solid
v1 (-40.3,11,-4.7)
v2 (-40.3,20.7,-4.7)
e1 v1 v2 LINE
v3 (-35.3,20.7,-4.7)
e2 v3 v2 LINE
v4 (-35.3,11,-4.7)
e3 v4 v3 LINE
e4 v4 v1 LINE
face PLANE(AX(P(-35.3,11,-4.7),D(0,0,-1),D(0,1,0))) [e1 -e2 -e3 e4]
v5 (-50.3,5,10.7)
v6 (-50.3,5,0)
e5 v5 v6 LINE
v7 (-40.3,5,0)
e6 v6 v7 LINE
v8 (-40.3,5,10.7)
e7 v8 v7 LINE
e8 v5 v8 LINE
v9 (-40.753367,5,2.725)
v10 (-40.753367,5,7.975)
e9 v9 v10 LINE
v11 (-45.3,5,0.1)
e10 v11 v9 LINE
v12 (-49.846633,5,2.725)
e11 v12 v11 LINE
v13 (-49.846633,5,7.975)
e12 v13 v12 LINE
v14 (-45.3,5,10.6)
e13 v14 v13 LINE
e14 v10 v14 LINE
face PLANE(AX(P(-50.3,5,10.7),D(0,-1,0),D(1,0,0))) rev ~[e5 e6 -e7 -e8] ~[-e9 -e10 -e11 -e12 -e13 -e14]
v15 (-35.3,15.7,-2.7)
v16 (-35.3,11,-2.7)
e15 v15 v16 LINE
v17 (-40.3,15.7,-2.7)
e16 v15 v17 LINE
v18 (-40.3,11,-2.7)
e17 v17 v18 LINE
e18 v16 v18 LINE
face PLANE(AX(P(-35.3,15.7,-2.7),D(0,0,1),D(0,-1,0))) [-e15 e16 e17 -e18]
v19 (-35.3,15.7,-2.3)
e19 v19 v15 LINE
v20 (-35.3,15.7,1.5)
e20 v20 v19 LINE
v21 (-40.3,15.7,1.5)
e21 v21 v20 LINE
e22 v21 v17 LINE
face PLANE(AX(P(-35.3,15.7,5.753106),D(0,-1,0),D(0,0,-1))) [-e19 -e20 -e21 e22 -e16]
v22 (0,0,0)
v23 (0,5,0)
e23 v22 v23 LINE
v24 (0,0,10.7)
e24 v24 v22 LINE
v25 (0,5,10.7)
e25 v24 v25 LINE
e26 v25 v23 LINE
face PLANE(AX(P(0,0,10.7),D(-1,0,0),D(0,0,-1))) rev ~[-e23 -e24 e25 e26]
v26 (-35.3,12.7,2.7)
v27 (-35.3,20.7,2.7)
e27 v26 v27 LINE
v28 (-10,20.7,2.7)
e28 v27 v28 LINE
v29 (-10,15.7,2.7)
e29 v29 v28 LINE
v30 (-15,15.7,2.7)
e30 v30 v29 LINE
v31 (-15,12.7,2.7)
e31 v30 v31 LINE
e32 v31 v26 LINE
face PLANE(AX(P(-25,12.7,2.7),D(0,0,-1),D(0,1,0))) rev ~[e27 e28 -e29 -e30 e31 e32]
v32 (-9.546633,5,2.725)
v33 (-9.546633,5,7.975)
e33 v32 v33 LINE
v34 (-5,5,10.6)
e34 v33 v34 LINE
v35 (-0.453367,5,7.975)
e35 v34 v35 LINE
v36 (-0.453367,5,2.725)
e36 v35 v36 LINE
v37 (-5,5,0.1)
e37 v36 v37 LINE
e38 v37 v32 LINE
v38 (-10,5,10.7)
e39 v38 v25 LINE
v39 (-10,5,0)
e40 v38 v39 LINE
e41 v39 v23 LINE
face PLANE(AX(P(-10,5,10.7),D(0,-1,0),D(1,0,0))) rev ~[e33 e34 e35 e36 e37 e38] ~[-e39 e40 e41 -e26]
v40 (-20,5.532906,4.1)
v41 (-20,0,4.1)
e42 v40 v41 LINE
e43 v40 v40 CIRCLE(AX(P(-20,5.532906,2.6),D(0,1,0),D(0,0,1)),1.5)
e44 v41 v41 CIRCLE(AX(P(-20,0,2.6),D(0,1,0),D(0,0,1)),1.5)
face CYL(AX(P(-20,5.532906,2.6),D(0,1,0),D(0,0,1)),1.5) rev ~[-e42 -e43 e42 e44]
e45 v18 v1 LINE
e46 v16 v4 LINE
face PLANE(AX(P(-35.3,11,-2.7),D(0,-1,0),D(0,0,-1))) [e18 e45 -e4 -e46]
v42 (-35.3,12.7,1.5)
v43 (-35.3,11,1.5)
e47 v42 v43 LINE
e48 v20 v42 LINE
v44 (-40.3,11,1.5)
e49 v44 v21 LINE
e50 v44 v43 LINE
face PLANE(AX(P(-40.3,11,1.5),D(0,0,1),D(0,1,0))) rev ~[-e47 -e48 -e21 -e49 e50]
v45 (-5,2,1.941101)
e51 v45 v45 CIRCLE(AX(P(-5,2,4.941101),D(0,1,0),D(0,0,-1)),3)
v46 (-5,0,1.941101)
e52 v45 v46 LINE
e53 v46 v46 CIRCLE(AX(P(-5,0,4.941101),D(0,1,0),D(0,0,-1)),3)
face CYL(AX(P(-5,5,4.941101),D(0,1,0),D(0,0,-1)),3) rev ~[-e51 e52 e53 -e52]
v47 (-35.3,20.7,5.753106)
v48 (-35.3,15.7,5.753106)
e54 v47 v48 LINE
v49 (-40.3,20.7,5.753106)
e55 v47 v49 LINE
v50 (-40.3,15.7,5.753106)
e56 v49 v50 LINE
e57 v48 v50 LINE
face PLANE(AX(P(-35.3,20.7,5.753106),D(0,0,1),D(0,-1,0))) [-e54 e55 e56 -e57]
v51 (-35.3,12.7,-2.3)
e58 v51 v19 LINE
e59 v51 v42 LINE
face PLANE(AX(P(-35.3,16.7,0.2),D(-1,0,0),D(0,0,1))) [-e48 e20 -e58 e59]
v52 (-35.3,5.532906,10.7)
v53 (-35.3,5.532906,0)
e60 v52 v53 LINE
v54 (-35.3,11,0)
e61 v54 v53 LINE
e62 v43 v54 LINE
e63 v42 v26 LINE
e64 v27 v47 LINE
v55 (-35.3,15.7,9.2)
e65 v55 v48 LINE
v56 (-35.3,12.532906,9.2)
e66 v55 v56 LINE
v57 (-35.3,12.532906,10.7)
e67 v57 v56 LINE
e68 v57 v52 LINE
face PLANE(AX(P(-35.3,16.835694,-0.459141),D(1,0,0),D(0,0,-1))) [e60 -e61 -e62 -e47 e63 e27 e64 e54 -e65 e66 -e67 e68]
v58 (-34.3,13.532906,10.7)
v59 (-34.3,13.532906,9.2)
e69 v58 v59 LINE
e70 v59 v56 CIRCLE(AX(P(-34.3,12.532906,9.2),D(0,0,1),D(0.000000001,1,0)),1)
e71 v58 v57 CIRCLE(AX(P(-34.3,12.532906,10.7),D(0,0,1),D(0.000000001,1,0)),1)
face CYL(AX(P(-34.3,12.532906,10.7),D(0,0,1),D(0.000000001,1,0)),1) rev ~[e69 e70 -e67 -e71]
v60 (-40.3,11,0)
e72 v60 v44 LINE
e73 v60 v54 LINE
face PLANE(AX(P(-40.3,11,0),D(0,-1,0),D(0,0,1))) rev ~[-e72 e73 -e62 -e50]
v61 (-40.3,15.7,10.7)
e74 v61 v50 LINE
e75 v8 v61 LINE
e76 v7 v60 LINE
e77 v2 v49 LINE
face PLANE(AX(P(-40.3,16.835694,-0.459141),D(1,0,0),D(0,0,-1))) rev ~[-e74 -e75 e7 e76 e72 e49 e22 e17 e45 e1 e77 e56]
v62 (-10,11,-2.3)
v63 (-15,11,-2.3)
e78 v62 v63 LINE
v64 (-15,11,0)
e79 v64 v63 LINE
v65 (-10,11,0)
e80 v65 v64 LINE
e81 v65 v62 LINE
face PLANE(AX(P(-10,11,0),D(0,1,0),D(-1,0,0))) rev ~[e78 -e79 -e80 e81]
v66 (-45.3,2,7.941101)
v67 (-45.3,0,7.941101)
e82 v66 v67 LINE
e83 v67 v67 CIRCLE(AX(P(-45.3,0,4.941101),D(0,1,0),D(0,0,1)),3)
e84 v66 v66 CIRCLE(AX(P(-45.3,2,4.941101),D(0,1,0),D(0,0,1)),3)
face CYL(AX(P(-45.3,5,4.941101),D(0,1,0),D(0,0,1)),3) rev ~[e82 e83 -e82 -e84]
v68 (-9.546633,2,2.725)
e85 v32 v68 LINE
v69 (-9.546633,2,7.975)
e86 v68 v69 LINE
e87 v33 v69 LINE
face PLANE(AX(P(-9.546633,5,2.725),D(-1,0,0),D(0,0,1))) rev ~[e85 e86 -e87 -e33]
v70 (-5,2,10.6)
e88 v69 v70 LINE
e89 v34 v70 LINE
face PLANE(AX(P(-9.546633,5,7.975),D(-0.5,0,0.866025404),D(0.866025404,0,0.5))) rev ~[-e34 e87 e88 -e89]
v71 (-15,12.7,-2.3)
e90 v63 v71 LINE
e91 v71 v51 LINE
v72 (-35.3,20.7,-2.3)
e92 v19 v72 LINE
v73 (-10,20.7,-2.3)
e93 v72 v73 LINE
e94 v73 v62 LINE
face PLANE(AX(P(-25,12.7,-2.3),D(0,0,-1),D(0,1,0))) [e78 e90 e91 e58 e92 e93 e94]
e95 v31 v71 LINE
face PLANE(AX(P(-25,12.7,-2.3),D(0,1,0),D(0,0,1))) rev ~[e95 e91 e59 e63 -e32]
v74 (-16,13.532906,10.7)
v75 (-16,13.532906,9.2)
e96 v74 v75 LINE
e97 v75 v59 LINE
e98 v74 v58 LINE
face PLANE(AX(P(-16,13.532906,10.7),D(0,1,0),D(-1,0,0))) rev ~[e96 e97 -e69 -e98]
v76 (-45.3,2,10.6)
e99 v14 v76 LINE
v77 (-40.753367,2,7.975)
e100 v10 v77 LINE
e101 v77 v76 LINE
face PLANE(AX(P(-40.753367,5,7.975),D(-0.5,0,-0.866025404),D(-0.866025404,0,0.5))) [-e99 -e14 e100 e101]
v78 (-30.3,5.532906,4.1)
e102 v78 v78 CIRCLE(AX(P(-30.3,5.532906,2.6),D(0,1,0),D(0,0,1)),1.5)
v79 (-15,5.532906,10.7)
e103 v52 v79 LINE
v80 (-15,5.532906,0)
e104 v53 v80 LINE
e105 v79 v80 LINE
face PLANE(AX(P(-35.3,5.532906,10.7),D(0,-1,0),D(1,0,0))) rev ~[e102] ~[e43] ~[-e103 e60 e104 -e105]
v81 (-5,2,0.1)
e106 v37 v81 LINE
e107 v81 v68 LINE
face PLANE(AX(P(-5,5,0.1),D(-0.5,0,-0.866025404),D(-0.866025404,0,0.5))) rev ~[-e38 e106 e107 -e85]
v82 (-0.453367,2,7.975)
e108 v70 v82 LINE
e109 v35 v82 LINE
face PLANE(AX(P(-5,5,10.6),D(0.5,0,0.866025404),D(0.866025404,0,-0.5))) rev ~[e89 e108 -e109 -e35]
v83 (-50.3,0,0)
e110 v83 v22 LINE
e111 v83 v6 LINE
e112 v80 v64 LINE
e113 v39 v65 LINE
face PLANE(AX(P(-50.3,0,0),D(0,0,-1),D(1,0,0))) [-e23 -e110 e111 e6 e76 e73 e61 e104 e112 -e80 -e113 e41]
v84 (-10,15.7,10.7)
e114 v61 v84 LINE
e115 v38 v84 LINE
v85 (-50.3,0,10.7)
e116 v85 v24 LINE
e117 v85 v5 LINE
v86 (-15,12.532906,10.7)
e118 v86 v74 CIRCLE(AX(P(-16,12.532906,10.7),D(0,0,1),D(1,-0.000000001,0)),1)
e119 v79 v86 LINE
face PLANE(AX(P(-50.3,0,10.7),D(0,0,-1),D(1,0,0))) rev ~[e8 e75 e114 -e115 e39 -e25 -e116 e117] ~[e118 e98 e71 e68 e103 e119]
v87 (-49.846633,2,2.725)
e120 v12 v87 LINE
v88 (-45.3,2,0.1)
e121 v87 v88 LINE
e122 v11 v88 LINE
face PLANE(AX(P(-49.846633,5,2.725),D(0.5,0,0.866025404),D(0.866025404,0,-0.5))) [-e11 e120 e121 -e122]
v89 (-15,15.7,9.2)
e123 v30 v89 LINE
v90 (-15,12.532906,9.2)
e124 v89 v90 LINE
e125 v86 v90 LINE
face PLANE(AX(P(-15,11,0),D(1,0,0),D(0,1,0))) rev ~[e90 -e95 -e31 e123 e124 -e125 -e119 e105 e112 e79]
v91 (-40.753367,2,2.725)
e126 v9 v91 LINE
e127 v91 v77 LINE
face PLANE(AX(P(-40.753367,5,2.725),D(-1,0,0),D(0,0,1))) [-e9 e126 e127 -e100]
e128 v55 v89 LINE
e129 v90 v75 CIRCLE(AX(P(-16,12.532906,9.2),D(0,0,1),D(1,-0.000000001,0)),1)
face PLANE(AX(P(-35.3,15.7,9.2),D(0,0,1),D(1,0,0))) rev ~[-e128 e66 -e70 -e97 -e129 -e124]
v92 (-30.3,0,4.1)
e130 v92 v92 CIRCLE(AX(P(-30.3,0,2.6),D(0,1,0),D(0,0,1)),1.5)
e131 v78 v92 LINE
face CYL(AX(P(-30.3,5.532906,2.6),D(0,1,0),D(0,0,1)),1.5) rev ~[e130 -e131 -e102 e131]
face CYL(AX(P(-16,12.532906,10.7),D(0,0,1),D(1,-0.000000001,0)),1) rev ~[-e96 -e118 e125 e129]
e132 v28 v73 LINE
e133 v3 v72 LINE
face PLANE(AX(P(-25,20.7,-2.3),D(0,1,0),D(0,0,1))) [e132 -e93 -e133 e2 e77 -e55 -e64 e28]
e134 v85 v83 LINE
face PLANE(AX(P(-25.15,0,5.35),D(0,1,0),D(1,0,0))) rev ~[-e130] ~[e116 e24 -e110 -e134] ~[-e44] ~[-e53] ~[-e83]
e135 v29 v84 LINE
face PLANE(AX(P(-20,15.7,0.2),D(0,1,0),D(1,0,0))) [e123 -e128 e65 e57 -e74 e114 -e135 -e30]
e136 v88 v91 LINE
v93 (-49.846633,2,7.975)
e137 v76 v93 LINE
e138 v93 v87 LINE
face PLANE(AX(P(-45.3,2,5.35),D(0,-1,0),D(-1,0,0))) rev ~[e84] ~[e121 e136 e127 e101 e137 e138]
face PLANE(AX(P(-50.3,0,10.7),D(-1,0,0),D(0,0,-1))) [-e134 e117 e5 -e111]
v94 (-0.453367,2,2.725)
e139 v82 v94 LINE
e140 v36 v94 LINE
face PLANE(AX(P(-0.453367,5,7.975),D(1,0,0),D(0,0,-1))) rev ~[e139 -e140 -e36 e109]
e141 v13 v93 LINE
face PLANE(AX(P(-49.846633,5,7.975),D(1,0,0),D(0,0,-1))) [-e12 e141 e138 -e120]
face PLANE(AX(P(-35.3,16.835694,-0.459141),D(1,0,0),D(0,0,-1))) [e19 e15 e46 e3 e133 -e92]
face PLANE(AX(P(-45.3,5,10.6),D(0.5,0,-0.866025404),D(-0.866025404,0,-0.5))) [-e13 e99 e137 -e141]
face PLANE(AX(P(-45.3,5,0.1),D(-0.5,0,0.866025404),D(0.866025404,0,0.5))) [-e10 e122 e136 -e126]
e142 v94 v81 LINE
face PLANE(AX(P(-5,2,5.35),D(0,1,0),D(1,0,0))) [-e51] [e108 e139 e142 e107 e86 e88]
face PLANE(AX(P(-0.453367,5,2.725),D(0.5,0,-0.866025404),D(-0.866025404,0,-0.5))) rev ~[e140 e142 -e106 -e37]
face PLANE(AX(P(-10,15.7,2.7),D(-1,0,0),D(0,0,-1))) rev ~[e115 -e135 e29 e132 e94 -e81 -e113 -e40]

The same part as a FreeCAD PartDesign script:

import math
import FreeCAD as App
import Part
import Sketcher
Q = App.Units.Quantity


def add_polygon(sketch, points):
    """Adds a closed chain of lines whose ends are joined by coincident constraints."""
    first, n = sketch.GeometryCount, len(points)
    for a, b in zip(points, points[1:] + points[:1]):
        sketch.addGeometry(Part.LineSegment(App.Vector(*a, 0), App.Vector(*b, 0)), False)
    for i in range(n):
        sketch.addConstraint(Sketcher.Constraint("Coincident", first + i, 2, first + (i + 1) % n, 1))

doc = App.newDocument("Part")
params = doc.addObject("Spreadsheet::Sheet", "Params")
for row, (alias, value) in enumerate([
    ("sketch1_width", "50.3 mm"),
    ("sketch1_height", "10.7 mm"),
    ("pad1_length", "15.7 mm"),
    ("sketch2_width", "10 mm"),
    ("sketch2_height", "10.7 mm"),
    ("sketch3_radius", "1 mm"),
    ("sketch3_height", "7 mm"),
    ("sketch3_width", "20.3 mm"),
    ("sketch4_width", "10 mm"),
    ("sketch4_height", "10.7 mm"),
    ("sketch5_width", "20.3 mm"),
    ("sketch5_height", "9.2 mm"),
    ("pocket4_length", "3.167094 mm"),
    ("sketch6_width", "4.7 mm"),
    ("sketch6_height", "1.5 mm"),
    ("sketch7_diameter", "6 mm"),
    ("sketch8_diameter", "6 mm"),
    ("sketch9_diameter", "3 mm"),
    ("sketch10_diameter", "3 mm"),
    ("sketch11_height", "5.25 mm"),
    ("pocket10_length", "3 mm"),
    ("sketch12_width", "5 mm"),
    ("sketch12_height", "2 mm"),
    ("sketch12_width2", "4.7 mm"),
    ("pad2_length", "5 mm"),
    ("sketch13_width", "5 mm"),
    ("sketch13_height", "4.7 mm"),
    ("pad3_length", "2.3 mm"),
    ("sketch14_width", "10 mm"),
    ("sketch14_height", "5 mm"),
    ("pad4_length", "3 mm"),
    ("sketch15_width", "15 mm"),
    ("sketch15_height", "5 mm"),
    ("pad5_length", "5 mm"),
    ("sketch16_width", "8 mm"),
    ("sketch16_height", "5 mm"),
    ("pad6_length", "10.3 mm"),
], start=1):
    params.set(f"A{row}", alias)
    params.set(f"B{row}", "=" + value)
    params.setAlias(f"B{row}", alias)

body = doc.addObject("PartDesign::Body", "Body")

# Sketch on XZ plane
sketch1 = doc.addObject("Sketcher::SketchObject", "Sketch")
body.addObject(sketch1)
sketch1.AttachmentSupport = (doc.XZ_Plane, [""])
sketch1.MapMode = "FlatFace"
add_polygon(sketch1, [(-50.3, 0), (-50.3, 10.7), (0, 10.7), (0, 0)])  # lines 0-3
sketch1.addConstraint(Sketcher.Constraint("Vertical", 0))
sketch1.addConstraint(Sketcher.Constraint("Horizontal", 1))
sketch1.addConstraint(Sketcher.Constraint("Vertical", 2))
sketch1.addConstraint(Sketcher.Constraint("Horizontal", 3))
sketch1.addConstraint(Sketcher.Constraint("Coincident", 2, 2, -1, 1))
sketch1.addConstraint(Sketcher.Constraint("DistanceX", 1, 1, 1, 2, 50.3))
sketch1.addConstraint(Sketcher.Constraint("DistanceY", 0, 1, 0, 2, 10.7))
sketch1.setExpression("Constraints[9]", "Params.sketch1_width")
sketch1.setExpression("Constraints[10]", "Params.sketch1_height")
pad1 = doc.addObject("PartDesign::Pad", "Pad")
body.addObject(pad1)
pad1.Profile = sketch1
pad1.setExpression("Length", "Params.pad1_length")
pad1.Reversed = True

# Sketch on XY plane
sketch2 = doc.addObject("Sketcher::SketchObject", "Sketch001")
body.addObject(sketch2)
sketch2.AttachmentSupport = (doc.XY_Plane, [""])
sketch2.MapMode = "FlatFace"
sketch2.AttachmentOffset = App.Placement(App.Vector(0, 0, 10.7), App.Rotation())
add_polygon(sketch2, [(-50.3, 15.7), (-50.3, 5), (-40.3, 5), (-40.3, 15.7)])  # lines 0-3
sketch2.addConstraint(Sketcher.Constraint("Vertical", 0))
sketch2.addConstraint(Sketcher.Constraint("Horizontal", 1))
sketch2.addConstraint(Sketcher.Constraint("Vertical", 2))
sketch2.addConstraint(Sketcher.Constraint("Horizontal", 3))
sketch2.addConstraint(Sketcher.Constraint("DistanceX", 1, 1, 1, 2, 10.0))
sketch2.addConstraint(Sketcher.Constraint("DistanceY", 0, 2, 0, 1, 10.7))
sketch2.addConstraint(Sketcher.Constraint("DistanceY", -1, 1, 0, 2, 5.0))
sketch2.addConstraint(Sketcher.Constraint("DistanceX", 0, 2, -1, 1, 50.3))
sketch2.setExpression("Constraints[8]", "Params.sketch2_width")
sketch2.setExpression("Constraints[9]", "Params.sketch2_height")
pocket1 = doc.addObject("PartDesign::Pocket", "Pocket")
body.addObject(pocket1)
pocket1.Profile = sketch2
pocket1.Type = "UpToFirst"

# Sketch on XY plane
sketch3 = doc.addObject("Sketcher::SketchObject", "Sketch002")
body.addObject(sketch3)
sketch3.AttachmentSupport = (doc.XY_Plane, [""])
sketch3.MapMode = "FlatFace"
sketch3.AttachmentOffset = App.Placement(App.Vector(0, 0, 10.7), App.Rotation())
sketch3.addGeometry(Part.LineSegment(App.Vector(-35.3, 5.532906, 0), App.Vector(-15, 5.532906, 0)), False)
sketch3.addGeometry(Part.LineSegment(App.Vector(-15, 5.532906, 0), App.Vector(-15, 12.532906, 0)), False)
sketch3.addGeometry(Part.ArcOfCircle(Part.Circle(App.Vector(-16, 12.532906, 0), App.Vector(0, 0, 1), 1), math.radians(0), math.radians(90)), False)
sketch3.addGeometry(Part.LineSegment(App.Vector(-16, 13.532906, 0), App.Vector(-34.3, 13.532906, 0)), False)
sketch3.addGeometry(Part.ArcOfCircle(Part.Circle(App.Vector(-34.3, 12.532906, 0), App.Vector(0, 0, 1), 1), math.radians(90), math.radians(180)), False)
sketch3.addGeometry(Part.LineSegment(App.Vector(-35.3, 12.532906, 0), App.Vector(-35.3, 5.532906, 0)), False)
sketch3.addConstraint(Sketcher.Constraint("Coincident", 0, 2, 1, 1))
sketch3.addConstraint(Sketcher.Constraint("Tangent", 1, 2, 2, 1))
sketch3.addConstraint(Sketcher.Constraint("Tangent", 2, 2, 3, 1))
sketch3.addConstraint(Sketcher.Constraint("Tangent", 3, 2, 4, 1))
sketch3.addConstraint(Sketcher.Constraint("Tangent", 4, 2, 5, 1))
sketch3.addConstraint(Sketcher.Constraint("Coincident", 5, 2, 0, 1))
sketch3.addConstraint(Sketcher.Constraint("Horizontal", 0))
sketch3.addConstraint(Sketcher.Constraint("Vertical", 1))
sketch3.addConstraint(Sketcher.Constraint("Horizontal", 3))
sketch3.addConstraint(Sketcher.Constraint("Vertical", 5))
sketch3.addConstraint(Sketcher.Constraint("Equal", 2, 4))
sketch3.addConstraint(Sketcher.Constraint("Radius", 2, 1.0))
sketch3.addConstraint(Sketcher.Constraint("DistanceY", 1, 1, 1, 2, 7.0))
sketch3.addConstraint(Sketcher.Constraint("DistanceX", 0, 1, 0, 2, 20.3))
sketch3.addConstraint(Sketcher.Constraint("DistanceX", 2, 3, -1, 1, 16.0))
sketch3.addConstraint(Sketcher.Constraint("DistanceY", -1, 1, 2, 3, 12.532906))
sketch3.setExpression("Constraints[11]", "Params.sketch3_radius")
sketch3.setExpression("Constraints[12]", "Params.sketch3_height")
sketch3.setExpression("Constraints[13]", "Params.sketch3_width")
pocket2 = doc.addObject("PartDesign::Pocket", "Pocket001")
body.addObject(pocket2)
pocket2.Profile = sketch3
pocket2.Type = "UpToFirst"

# Sketch on XY plane
sketch4 = doc.addObject("Sketcher::SketchObject", "Sketch003")
body.addObject(sketch4)
sketch4.AttachmentSupport = (doc.XY_Plane, [""])
sketch4.MapMode = "FlatFace"
sketch4.AttachmentOffset = App.Placement(App.Vector(0, 0, 10.7), App.Rotation())
add_polygon(sketch4, [(-10, 15.7), (-10, 5), (0, 5), (0, 15.7)])  # lines 0-3
sketch4.addConstraint(Sketcher.Constraint("Vertical", 0))
sketch4.addConstraint(Sketcher.Constraint("Horizontal", 1))
sketch4.addConstraint(Sketcher.Constraint("Vertical", 2))
sketch4.addConstraint(Sketcher.Constraint("Horizontal", 3))
sketch4.addConstraint(Sketcher.Constraint("PointOnObject", 1, 2, -2))
sketch4.addConstraint(Sketcher.Constraint("DistanceX", 1, 1, 1, 2, 10.0))
sketch4.addConstraint(Sketcher.Constraint("DistanceY", 0, 2, 0, 1, 10.7))
sketch4.addConstraint(Sketcher.Constraint("DistanceY", -1, 1, 0, 2, 5.0))
sketch4.setExpression("Constraints[9]", "Params.sketch4_width")
sketch4.setExpression("Constraints[10]", "Params.sketch4_height")
pocket3 = doc.addObject("PartDesign::Pocket", "Pocket002")
body.addObject(pocket3)
pocket3.Profile = sketch4
pocket3.Type = "UpToFirst"

# Sketch on XZ plane
sketch5 = doc.addObject("Sketcher::SketchObject", "Sketch004")
body.addObject(sketch5)
sketch5.AttachmentSupport = (doc.XZ_Plane, [""])
sketch5.MapMode = "FlatFace"
sketch5.AttachmentOffset = App.Placement(App.Vector(0, 0, -15.7), App.Rotation())
add_polygon(sketch5, [(-35.3, 0), (-35.3, 9.2), (-15, 9.2), (-15, 0)])  # lines 0-3
sketch5.addConstraint(Sketcher.Constraint("Vertical", 0))
sketch5.addConstraint(Sketcher.Constraint("Horizontal", 1))
sketch5.addConstraint(Sketcher.Constraint("Vertical", 2))
sketch5.addConstraint(Sketcher.Constraint("Horizontal", 3))
sketch5.addConstraint(Sketcher.Constraint("PointOnObject", 2, 2, -1))
sketch5.addConstraint(Sketcher.Constraint("DistanceX", 1, 1, 1, 2, 20.3))
sketch5.addConstraint(Sketcher.Constraint("DistanceY", 0, 1, 0, 2, 9.2))
sketch5.addConstraint(Sketcher.Constraint("DistanceX", 1, 2, -1, 1, 15.0))
sketch5.setExpression("Constraints[9]", "Params.sketch5_width")
sketch5.setExpression("Constraints[10]", "Params.sketch5_height")
pocket4 = doc.addObject("PartDesign::Pocket", "Pocket003")
body.addObject(pocket4)
pocket4.Profile = sketch5
pocket4.setExpression("Length", "Params.pocket4_length")
pocket4.Reversed = True

# Sketch on YZ plane
sketch6 = doc.addObject("Sketcher::SketchObject", "Sketch005")
body.addObject(sketch6)
sketch6.AttachmentSupport = (doc.YZ_Plane, [""])
sketch6.MapMode = "FlatFace"
sketch6.AttachmentOffset = App.Placement(App.Vector(0, 0, -40.3), App.Rotation())
add_polygon(sketch6, [(15.7, 0), (11, 0), (11, 1.5), (15.7, 1.5)])  # lines 0-3
sketch6.addConstraint(Sketcher.Constraint("Horizontal", 0))
sketch6.addConstraint(Sketcher.Constraint("Vertical", 1))
sketch6.addConstraint(Sketcher.Constraint("Horizontal", 2))
sketch6.addConstraint(Sketcher.Constraint("Vertical", 3))
sketch6.addConstraint(Sketcher.Constraint("PointOnObject", 0, 2, -1))
sketch6.addConstraint(Sketcher.Constraint("DistanceX", 0, 2, 0, 1, 4.7))
sketch6.addConstraint(Sketcher.Constraint("DistanceY", 1, 1, 1, 2, 1.5))
sketch6.addConstraint(Sketcher.Constraint("DistanceX", -1, 1, 0, 2, 11.0))
sketch6.setExpression("Constraints[9]", "Params.sketch6_width")
sketch6.setExpression("Constraints[10]", "Params.sketch6_height")
pocket5 = doc.addObject("PartDesign::Pocket", "Pocket004")
body.addObject(pocket5)
pocket5.Profile = sketch6
pocket5.Type = "UpToFirst"
pocket5.Reversed = True

# Sketch on XZ plane
sketch7 = doc.addObject("Sketcher::SketchObject", "Sketch006")
body.addObject(sketch7)
sketch7.AttachmentSupport = (doc.XZ_Plane, [""])
sketch7.MapMode = "FlatFace"
sketch7.AttachmentOffset = App.Placement(App.Vector(0, 0, -5), App.Rotation())
sketch7.addGeometry(Part.Circle(App.Vector(-45.3, 4.941101, 0), App.Vector(0, 0, 1), 3), False)
sketch7.addConstraint(Sketcher.Constraint("Diameter", 0, 6.0))
sketch7.addConstraint(Sketcher.Constraint("DistanceX", 0, 3, -1, 1, 45.3))
sketch7.addConstraint(Sketcher.Constraint("DistanceY", -1, 1, 0, 3, 4.941101))
sketch7.setExpression("Constraints[0]", "Params.sketch7_diameter")
pocket6 = doc.addObject("PartDesign::Pocket", "Pocket005")
body.addObject(pocket6)
pocket6.Profile = sketch7
pocket6.Type = "UpToFirst"
pocket6.Reversed = True

# Sketch on XZ plane
sketch8 = doc.addObject("Sketcher::SketchObject", "Sketch007")
body.addObject(sketch8)
sketch8.AttachmentSupport = (doc.XZ_Plane, [""])
sketch8.MapMode = "FlatFace"
sketch8.AttachmentOffset = App.Placement(App.Vector(0, 0, -5), App.Rotation())
sketch8.addGeometry(Part.Circle(App.Vector(-5, 4.941101, 0), App.Vector(0, 0, 1), 3), False)
sketch8.addConstraint(Sketcher.Constraint("Diameter", 0, 6.0))
sketch8.addConstraint(Sketcher.Constraint("DistanceX", 0, 3, -1, 1, 5.0))
sketch8.addConstraint(Sketcher.Constraint("DistanceY", -1, 1, 0, 3, 4.941101))
sketch8.setExpression("Constraints[0]", "Params.sketch8_diameter")
pocket7 = doc.addObject("PartDesign::Pocket", "Pocket006")
body.addObject(pocket7)
pocket7.Profile = sketch8
pocket7.Type = "UpToFirst"
pocket7.Reversed = True

# Sketch on XZ plane
sketch9 = doc.addObject("Sketcher::SketchObject", "Sketch008")
body.addObject(sketch9)
sketch9.AttachmentSupport = (doc.XZ_Plane, [""])
sketch9.MapMode = "FlatFace"
sketch9.AttachmentOffset = App.Placement(App.Vector(0, 0, -5.532906), App.Rotation())
sketch9.addGeometry(Part.Circle(App.Vector(-30.3, 2.6, 0), App.Vector(0, 0, 1), 1.5), False)
sketch9.addConstraint(Sketcher.Constraint("Diameter", 0, 3.0))
sketch9.addConstraint(Sketcher.Constraint("DistanceX", 0, 3, -1, 1, 30.3))
sketch9.addConstraint(Sketcher.Constraint("DistanceY", -1, 1, 0, 3, 2.6))
sketch9.setExpression("Constraints[0]", "Params.sketch9_diameter")
pocket8 = doc.addObject("PartDesign::Pocket", "Pocket007")
body.addObject(pocket8)
pocket8.Profile = sketch9
pocket8.Type = "UpToFirst"
pocket8.Reversed = True

# Sketch on XZ plane
sketch10 = doc.addObject("Sketcher::SketchObject", "Sketch009")
body.addObject(sketch10)
sketch10.AttachmentSupport = (doc.XZ_Plane, [""])
sketch10.MapMode = "FlatFace"
sketch10.AttachmentOffset = App.Placement(App.Vector(0, 0, -5.532906), App.Rotation())
sketch10.addGeometry(Part.Circle(App.Vector(-20, 2.6, 0), App.Vector(0, 0, 1), 1.5), False)
sketch10.addConstraint(Sketcher.Constraint("Diameter", 0, 3.0))
sketch10.addConstraint(Sketcher.Constraint("DistanceX", 0, 3, -1, 1, 20.0))
sketch10.addConstraint(Sketcher.Constraint("DistanceY", -1, 1, 0, 3, 2.6))
sketch10.setExpression("Constraints[0]", "Params.sketch10_diameter")
pocket9 = doc.addObject("PartDesign::Pocket", "Pocket008")
body.addObject(pocket9)
pocket9.Profile = sketch10
pocket9.Type = "UpToFirst"
pocket9.Reversed = True

# Sketch on XZ plane
sketch11 = doc.addObject("Sketcher::SketchObject", "Sketch010")
body.addObject(sketch11)
sketch11.AttachmentSupport = (doc.XZ_Plane, [""])
sketch11.MapMode = "FlatFace"
sketch11.AttachmentOffset = App.Placement(App.Vector(0, 0, -5), App.Rotation())
add_polygon(sketch11, [(-5, 0.1), (-9.546633, 2.725), (-9.546633, 7.975), (-5, 10.6), (-0.453367, 7.975), (-0.453367, 2.725)])  # lines 0-5
add_polygon(sketch11, [(-45.3, 0.1), (-49.846633, 2.725), (-49.846633, 7.975), (-45.3, 10.6), (-40.753367, 7.975), (-40.753367, 2.725)])  # lines 6-11
sketch11.addConstraint(Sketcher.Constraint("Vertical", 1))
sketch11.addConstraint(Sketcher.Constraint("Vertical", 4))
sketch11.addConstraint(Sketcher.Constraint("Vertical", 7))
sketch11.addConstraint(Sketcher.Constraint("Vertical", 10))
sketch11.addConstraint(Sketcher.Constraint("Parallel", 0, 3))
sketch11.addConstraint(Sketcher.Constraint("Parallel", 2, 5))
sketch11.addConstraint(Sketcher.Constraint("Parallel", 3, 6))
sketch11.addConstraint(Sketcher.Constraint("Parallel", 5, 8))
sketch11.addConstraint(Sketcher.Constraint("Parallel", 6, 9))
sketch11.addConstraint(Sketcher.Constraint("Parallel", 8, 11))
sketch11.addConstraint(Sketcher.Constraint("Horizontal", 1, 2, 3, 2))
sketch11.addConstraint(Sketcher.Constraint("Horizontal", 0, 2, 4, 2))
sketch11.addConstraint(Sketcher.Constraint("Horizontal", 4, 2, 6, 2))
sketch11.addConstraint(Sketcher.Constraint("Horizontal", 3, 2, 7, 2))
sketch11.addConstraint(Sketcher.Constraint("Horizontal", 2, 2, 8, 2))
sketch11.addConstraint(Sketcher.Constraint("Horizontal", 7, 2, 9, 2))
sketch11.addConstraint(Sketcher.Constraint("Horizontal", 6, 2, 10, 2))
sketch11.addConstraint(Sketcher.Constraint("Vertical", 2, 2, 5, 2))
sketch11.addConstraint(Sketcher.Constraint("Angle", 0, Q("150 deg")))
sketch11.addConstraint(Sketcher.Constraint("DistanceX", 2, 2, -1, 1, 5.0))
sketch11.addConstraint(Sketcher.Constraint("DistanceY", 1, 1, 1, 2, 5.25))
sketch11.addConstraint(Sketcher.Constraint("DistanceY", -1, 1, 2, 2, 10.6))
sketch11.addConstraint(Sketcher.Constraint("DistanceY", -1, 1, 5, 2, 0.1))
sketch11.addConstraint(Sketcher.Constraint("DistanceX", 8, 2, -1, 1, 45.3))
sketch11.setExpression("Constraints[32]", "Params.sketch11_height")
pocket10 = doc.addObject("PartDesign::Pocket", "Pocket009")
body.addObject(pocket10)
pocket10.Profile = sketch11
pocket10.setExpression("Length", "Params.pocket10_length")
pocket10.Reversed = True

# Sketch on YZ plane
sketch12 = doc.addObject("Sketcher::SketchObject", "Sketch011")
body.addObject(sketch12)
sketch12.AttachmentSupport = (doc.YZ_Plane, [""])
sketch12.MapMode = "FlatFace"
sketch12.AttachmentOffset = App.Placement(App.Vector(0, 0, -35.3), App.Rotation())
add_polygon(sketch12, [(15.7, -2.7), (11, -2.7), (11, -4.7), (20.7, -4.7), (20.7, 5.753106), (15.7, 5.753106)])  # lines 0-5
sketch12.addConstraint(Sketcher.Constraint("Horizontal", 0))
sketch12.addConstraint(Sketcher.Constraint("Vertical", 1))
sketch12.addConstraint(Sketcher.Constraint("Horizontal", 2))
sketch12.addConstraint(Sketcher.Constraint("Vertical", 3))
sketch12.addConstraint(Sketcher.Constraint("Horizontal", 4))
sketch12.addConstraint(Sketcher.Constraint("Vertical", 5))
sketch12.addConstraint(Sketcher.Constraint("DistanceX", 4, 2, 4, 1, 5.0))
sketch12.addConstraint(Sketcher.Constraint("DistanceY", 1, 2, 1, 1, 2.0))
sketch12.addConstraint(Sketcher.Constraint("DistanceX", 0, 2, 0, 1, 4.7))
sketch12.addConstraint(Sketcher.Constraint("DistanceX", -1, 1, 0, 2, 11.0))
sketch12.addConstraint(Sketcher.Constraint("DistanceY", 0, 2, -1, 1, 2.7))
sketch12.addConstraint(Sketcher.Constraint("DistanceY", 3, 1, 3, 2, 10.453106))
sketch12.setExpression("Constraints[12]", "Params.sketch12_width")
sketch12.setExpression("Constraints[13]", "Params.sketch12_height")
sketch12.setExpression("Constraints[14]", "Params.sketch12_width2")
pad2 = doc.addObject("PartDesign::Pad", "Pad001")
body.addObject(pad2)
pad2.Profile = sketch12
pad2.setExpression("Length", "Params.pad2_length")
pad2.Reversed = True

# Sketch on XY plane
sketch13 = doc.addObject("Sketcher::SketchObject", "Sketch012")
body.addObject(sketch13)
sketch13.AttachmentSupport = (doc.XY_Plane, [""])
sketch13.MapMode = "FlatFace"
add_polygon(sketch13, [(-10, 15.7), (-10, 11), (-15, 11), (-15, 15.7)])  # lines 0-3
sketch13.addConstraint(Sketcher.Constraint("Vertical", 0))
sketch13.addConstraint(Sketcher.Constraint("Horizontal", 1))
sketch13.addConstraint(Sketcher.Constraint("Vertical", 2))
sketch13.addConstraint(Sketcher.Constraint("Horizontal", 3))
sketch13.addConstraint(Sketcher.Constraint("DistanceX", 1, 2, 1, 1, 5.0))
sketch13.addConstraint(Sketcher.Constraint("DistanceY", 0, 2, 0, 1, 4.7))
sketch13.addConstraint(Sketcher.Constraint("DistanceX", 0, 2, -1, 1, 10.0))
sketch13.addConstraint(Sketcher.Constraint("DistanceY", -1, 1, 0, 2, 11.0))
sketch13.setExpression("Constraints[8]", "Params.sketch13_width")
sketch13.setExpression("Constraints[9]", "Params.sketch13_height")
pad3 = doc.addObject("PartDesign::Pad", "Pad002")
body.addObject(pad3)
pad3.Profile = sketch13
pad3.setExpression("Length", "Params.pad3_length")
pad3.Reversed = True

# Sketch on XZ plane
sketch14 = doc.addObject("Sketcher::SketchObject", "Sketch013")
body.addObject(sketch14)
sketch14.AttachmentSupport = (doc.XZ_Plane, [""])
sketch14.MapMode = "FlatFace"
sketch14.AttachmentOffset = App.Placement(App.Vector(0, 0, -15.7), App.Rotation())
add_polygon(sketch14, [(-25, -2.3), (-25, 2.7), (-15, 2.7), (-15, -2.3)])  # lines 0-3
sketch14.addConstraint(Sketcher.Constraint("Vertical", 0))
sketch14.addConstraint(Sketcher.Constraint("Horizontal", 1))
sketch14.addConstraint(Sketcher.Constraint("Vertical", 2))
sketch14.addConstraint(Sketcher.Constraint("Horizontal", 3))
sketch14.addConstraint(Sketcher.Constraint("DistanceX", 1, 1, 1, 2, 10.0))
sketch14.addConstraint(Sketcher.Constraint("DistanceY", 0, 1, 0, 2, 5.0))
sketch14.addConstraint(Sketcher.Constraint("DistanceX", 0, 2, -1, 1, 25.0))
sketch14.addConstraint(Sketcher.Constraint("DistanceY", -1, 1, 0, 2, 2.7))
sketch14.setExpression("Constraints[8]", "Params.sketch14_width")
sketch14.setExpression("Constraints[9]", "Params.sketch14_height")
pad4 = doc.addObject("PartDesign::Pad", "Pad003")
body.addObject(pad4)
pad4.Profile = sketch14
pad4.setExpression("Length", "Params.pad4_length")

# Sketch on XZ plane
sketch15 = doc.addObject("Sketcher::SketchObject", "Sketch014")
body.addObject(sketch15)
sketch15.AttachmentSupport = (doc.XZ_Plane, [""])
sketch15.MapMode = "FlatFace"
sketch15.AttachmentOffset = App.Placement(App.Vector(0, 0, -15.7), App.Rotation())
add_polygon(sketch15, [(-25, -2.3), (-25, 2.7), (-10, 2.7), (-10, -2.3)])  # lines 0-3
sketch15.addConstraint(Sketcher.Constraint("Vertical", 0))
sketch15.addConstraint(Sketcher.Constraint("Horizontal", 1))
sketch15.addConstraint(Sketcher.Constraint("Vertical", 2))
sketch15.addConstraint(Sketcher.Constraint("Horizontal", 3))
sketch15.addConstraint(Sketcher.Constraint("DistanceX", 1, 1, 1, 2, 15.0))
sketch15.addConstraint(Sketcher.Constraint("DistanceY", 0, 1, 0, 2, 5.0))
sketch15.addConstraint(Sketcher.Constraint("DistanceX", 0, 2, -1, 1, 25.0))
sketch15.addConstraint(Sketcher.Constraint("DistanceY", -1, 1, 0, 2, 2.7))
sketch15.setExpression("Constraints[8]", "Params.sketch15_width")
sketch15.setExpression("Constraints[9]", "Params.sketch15_height")
pad5 = doc.addObject("PartDesign::Pad", "Pad004")
body.addObject(pad5)
pad5.Profile = sketch15
pad5.setExpression("Length", "Params.pad5_length")
pad5.Reversed = True

# Sketch on YZ plane
sketch16 = doc.addObject("Sketcher::SketchObject", "Sketch015")
body.addObject(sketch16)
sketch16.AttachmentSupport = (doc.YZ_Plane, [""])
sketch16.MapMode = "FlatFace"
sketch16.AttachmentOffset = App.Placement(App.Vector(0, 0, -25), App.Rotation())
add_polygon(sketch16, [(20.7, -2.3), (12.7, -2.3), (12.7, 2.7), (20.7, 2.7)])  # lines 0-3
sketch16.addConstraint(Sketcher.Constraint("Horizontal", 0))
sketch16.addConstraint(Sketcher.Constraint("Vertical", 1))
sketch16.addConstraint(Sketcher.Constraint("Horizontal", 2))
sketch16.addConstraint(Sketcher.Constraint("Vertical", 3))
sketch16.addConstraint(Sketcher.Constraint("DistanceX", 0, 2, 0, 1, 8.0))
sketch16.addConstraint(Sketcher.Constraint("DistanceY", 1, 1, 1, 2, 5.0))
sketch16.addConstraint(Sketcher.Constraint("DistanceX", -1, 1, 0, 2, 12.7))
sketch16.addConstraint(Sketcher.Constraint("DistanceY", 0, 2, -1, 1, 2.3))
sketch16.setExpression("Constraints[8]", "Params.sketch16_width")
sketch16.setExpression("Constraints[9]", "Params.sketch16_height")
pad6 = doc.addObject("PartDesign::Pad", "Pad005")
body.addObject(pad6)
pad6.Profile = sketch16
pad6.setExpression("Length", "Params.pad6_length")
pad6.Reversed = True

doc.recompute()
